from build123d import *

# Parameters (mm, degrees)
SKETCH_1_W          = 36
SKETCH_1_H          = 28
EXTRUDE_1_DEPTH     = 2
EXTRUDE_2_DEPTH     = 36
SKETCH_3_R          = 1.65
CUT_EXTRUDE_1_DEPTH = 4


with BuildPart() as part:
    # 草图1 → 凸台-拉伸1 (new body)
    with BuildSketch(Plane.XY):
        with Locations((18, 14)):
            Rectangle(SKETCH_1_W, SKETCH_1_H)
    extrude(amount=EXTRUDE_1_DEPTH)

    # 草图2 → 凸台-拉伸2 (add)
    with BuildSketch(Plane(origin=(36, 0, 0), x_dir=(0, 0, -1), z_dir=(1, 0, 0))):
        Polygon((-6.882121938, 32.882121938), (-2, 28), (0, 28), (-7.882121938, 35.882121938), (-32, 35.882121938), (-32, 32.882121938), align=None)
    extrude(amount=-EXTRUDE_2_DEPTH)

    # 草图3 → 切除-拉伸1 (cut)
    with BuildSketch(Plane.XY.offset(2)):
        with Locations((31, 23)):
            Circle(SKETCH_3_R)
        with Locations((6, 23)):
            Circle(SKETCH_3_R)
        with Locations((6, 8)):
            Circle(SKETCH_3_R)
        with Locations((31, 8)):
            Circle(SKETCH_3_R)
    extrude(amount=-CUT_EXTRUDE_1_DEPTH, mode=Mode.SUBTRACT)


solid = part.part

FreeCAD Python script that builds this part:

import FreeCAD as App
import Part
import Sketcher
Q = App.Units.Quantity

doc = App.newDocument("Part")
params = doc.addObject("Spreadsheet::Sheet", "Params")
for row, (alias, value) in enumerate([
    ("sketch1_width", "36 mm"),
    ("sketch1_height", "28 mm"),
    ("pad1_length", "2 mm"),
    ("sketch2_width", "3 mm"),
    ("sketch2_height", "2 mm"),
    ("pad2_length", "36 mm"),
    ("sketch3_diameter", "3.3 mm"),
    ("pocket1_length", "4 mm"),
], start=1):
    params.set(f"A{row}", alias)
    params.set(f"B{row}", "=" + value)
    params.setAlias(f"B{row}", alias)

body = doc.addObject("PartDesign::Body", "Body")

sketch1 = doc.addObject("Sketcher::SketchObject", "Sketch")
body.addObject(sketch1)
sketch1.AttachmentSupport = (doc.XY_Plane, [""])
sketch1.MapMode = "FlatFace"
sketch1.addGeometry(Part.LineSegment(App.Vector(0, 28, 0), App.Vector(0, 0, 0)), False)
sketch1.addGeometry(Part.LineSegment(App.Vector(0, 0, 0), App.Vector(36, 0, 0)), False)
sketch1.addGeometry(Part.LineSegment(App.Vector(36, 0, 0), App.Vector(36, 28, 0)), False)
sketch1.addGeometry(Part.LineSegment(App.Vector(36, 28, 0), App.Vector(0, 28, 0)), False)
sketch1.addConstraint(Sketcher.Constraint("Coincident", 0, 2, 1, 1))
sketch1.addConstraint(Sketcher.Constraint("Coincident", 1, 2, 2, 1))
sketch1.addConstraint(Sketcher.Constraint("Coincident", 2, 2, 3, 1))
sketch1.addConstraint(Sketcher.Constraint("Coincident", 3, 2, 0, 1))
sketch1.addConstraint(Sketcher.Constraint("Vertical", 0))
sketch1.addConstraint(Sketcher.Constraint("Horizontal", 1))
sketch1.addConstraint(Sketcher.Constraint("Vertical", 2))
sketch1.addConstraint(Sketcher.Constraint("Horizontal", 3))
sketch1.addConstraint(Sketcher.Constraint("Coincident", 0, 2, -1, 1))
sketch1.addConstraint(Sketcher.Constraint("DistanceX", 1, 1, 1, 2, Q("36 mm")))
sketch1.addConstraint(Sketcher.Constraint("DistanceY", 0, 2, 0, 1, Q("28 mm")))
sketch1.setExpression("Constraints[9]", "Params.sketch1_width")
sketch1.setExpression("Constraints[10]", "Params.sketch1_height")
pad1 = doc.addObject("PartDesign::Pad", "Pad")
body.addObject(pad1)
pad1.Profile = sketch1
pad1.setExpression("Length", "Params.pad1_length")

sketch2 = doc.addObject("Sketcher::SketchObject", "Sketch001")
body.addObject(sketch2)
sketch2.AttachmentSupport = (doc.YZ_Plane, [""])
sketch2.MapMode = "FlatFace"
sketch2.AttachmentOffset = App.Placement(App.Vector(0, 0, 36), App.Rotation())
sketch2.addGeometry(Part.LineSegment(App.Vector(32.9, 6.9, 0), App.Vector(28, 2, 0)), False)
sketch2.addGeometry(Part.LineSegment(App.Vector(28, 2, 0), App.Vector(28, 0, 0)), False)
sketch2.addGeometry(Part.LineSegment(App.Vector(28, 0, 0), App.Vector(35.9, 7.9, 0)), False)
sketch2.addGeometry(Part.LineSegment(App.Vector(35.9, 7.9, 0), App.Vector(35.9, 32, 0)), False)
sketch2.addGeometry(Part.LineSegment(App.Vector(35.9, 32, 0), App.Vector(32.9, 32, 0)), False)
sketch2.addGeometry(Part.LineSegment(App.Vector(32.9, 32, 0), App.Vector(32.9, 6.9, 0)), False)
sketch2.addConstraint(Sketcher.Constraint("Coincident", 0, 2, 1, 1))
sketch2.addConstraint(Sketcher.Constraint("Coincident", 1, 2, 2, 1))
sketch2.addConstraint(Sketcher.Constraint("Coincident", 2, 2, 3, 1))
sketch2.addConstraint(Sketcher.Constraint("Coincident", 3, 2, 4, 1))
sketch2.addConstraint(Sketcher.Constraint("Coincident", 4, 2, 5, 1))
sketch2.addConstraint(Sketcher.Constraint("Coincident", 5, 2, 0, 1))
sketch2.addConstraint(Sketcher.Constraint("Vertical", 1))
sketch2.addConstraint(Sketcher.Constraint("Vertical", 3))
sketch2.addConstraint(Sketcher.Constraint("Horizontal", 4))
sketch2.addConstraint(Sketcher.Constraint("Vertical", 5))
sketch2.addConstraint(Sketcher.Constraint("PointOnObject", 1, 2, -1))
sketch2.addConstraint(Sketcher.Constraint("Parallel", 0, 2))
sketch2.addConstraint(Sketcher.Constraint("DistanceX", 4, 2, 4, 1, Q("3 mm")))
sketch2.addConstraint(Sketcher.Constraint("DistanceY", 1, 2, 1, 1, Q("2 mm")))
sketch2.addConstraint(Sketcher.Constraint("Angle", 0, Q("-135 deg")))
sketch2.addConstraint(Sketcher.Constraint("DistanceX", -1, 1, 0, 2, Q("28 mm")))
sketch2.addConstraint(Sketcher.Constraint("DistanceY", -1, 1, 3, 2, Q("32 mm")))
sketch2.addConstraint(Sketcher.Constraint("DistanceY", 3, 1, 3, 2, Q("24.117878 mm")))
sketch2.setExpression("Constraints[12]", "Params.sketch2_width")
sketch2.setExpression("Constraints[13]", "Params.sketch2_height")
pad2 = doc.addObject("PartDesign::Pad", "Pad001")
body.addObject(pad2)
pad2.Profile = sketch2
pad2.setExpression("Length", "Params.pad2_length")
pad2.Reversed = True

sketch3 = doc.addObject("Sketcher::SketchObject", "Sketch002")
body.addObject(sketch3)
sketch3.AttachmentSupport = (doc.XY_Plane, [""])
sketch3.MapMode = "FlatFace"
sketch3.AttachmentOffset = App.Placement(App.Vector(0, 0, 2), App.Rotation())
sketch3.addGeometry(Part.Circle(App.Vector(31, 23, 0), App.Vector(0, 0, 1), 1.6), False)
sketch3.addGeometry(Part.Circle(App.Vector(6, 23, 0), App.Vector(0, 0, 1), 1.6), False)
sketch3.addGeometry(Part.Circle(App.Vector(6, 8, 0), App.Vector(0, 0, 1), 1.6), False)
sketch3.addGeometry(Part.Circle(App.Vector(31, 8, 0), App.Vector(0, 0, 1), 1.6), False)
sketch3.addConstraint(Sketcher.Constraint("Equal", 0, 1))
sketch3.addConstraint(Sketcher.Constraint("Equal", 1, 2))
sketch3.addConstraint(Sketcher.Constraint("Equal", 2, 3))
sketch3.addConstraint(Sketcher.Constraint("Horizontal", 0, 3, 1, 3))
sketch3.addConstraint(Sketcher.Constraint("Horizontal", 2, 3, 3, 3))
sketch3.addConstraint(Sketcher.Constraint("Vertical", 1, 3, 2, 3))
sketch3.addConstraint(Sketcher.Constraint("Vertical", 0, 3, 3, 3))
sketch3.addConstraint(Sketcher.Constraint("Diameter", 0, Q("3.3 mm")))
sketch3.addConstraint(Sketcher.Constraint("DistanceX", -1, 1, 0, 3, Q("31 mm")))
sketch3.addConstraint(Sketcher.Constraint("DistanceY", -1, 1, 0, 3, Q("23 mm")))
sketch3.addConstraint(Sketcher.Constraint("DistanceX", -1, 1, 1, 3, Q("6 mm")))
sketch3.addConstraint(Sketcher.Constraint("DistanceY", -1, 1, 2, 3, Q("8 mm")))
sketch3.setExpression("Constraints[7]", "Params.sketch3_diameter")
pocket1 = doc.addObject("PartDesign::Pocket", "Pocket")
body.addObject(pocket1)
pocket1.Profile = sketch3
pocket1.setExpression("Length", "Params.pocket1_length")

doc.recompute()
